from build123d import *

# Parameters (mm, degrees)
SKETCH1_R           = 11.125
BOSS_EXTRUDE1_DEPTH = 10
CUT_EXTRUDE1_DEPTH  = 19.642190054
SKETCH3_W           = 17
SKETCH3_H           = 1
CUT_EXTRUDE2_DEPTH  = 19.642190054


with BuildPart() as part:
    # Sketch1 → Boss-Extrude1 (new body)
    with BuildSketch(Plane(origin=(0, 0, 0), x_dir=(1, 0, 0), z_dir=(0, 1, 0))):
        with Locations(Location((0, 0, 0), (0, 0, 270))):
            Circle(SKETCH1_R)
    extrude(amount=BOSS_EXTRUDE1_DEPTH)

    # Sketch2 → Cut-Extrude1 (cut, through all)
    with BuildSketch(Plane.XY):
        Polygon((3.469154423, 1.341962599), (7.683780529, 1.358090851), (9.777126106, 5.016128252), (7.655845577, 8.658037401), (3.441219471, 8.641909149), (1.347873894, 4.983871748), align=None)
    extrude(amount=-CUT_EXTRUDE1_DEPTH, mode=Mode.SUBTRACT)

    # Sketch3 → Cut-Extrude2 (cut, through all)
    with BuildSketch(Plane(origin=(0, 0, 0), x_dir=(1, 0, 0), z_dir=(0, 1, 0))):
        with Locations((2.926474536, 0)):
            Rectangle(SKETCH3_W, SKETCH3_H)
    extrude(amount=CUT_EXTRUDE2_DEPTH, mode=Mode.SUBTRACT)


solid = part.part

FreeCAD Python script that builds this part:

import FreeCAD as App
import Part
import Sketcher

V = App.Vector
Q = App.Units.Quantity

doc = App.newDocument("Part")
params = doc.addObject("Spreadsheet::Sheet", "Params")
for row, (alias, value) in enumerate([
    ("sketch1_diameter", "22.25 mm"),
    ("pad1_length", "10 mm"),
    ("sketch3_width", "17 mm"),
    ("sketch3_height", "1 mm"),
], start=1):
    params.set(f"A{row}", alias)
    params.set(f"B{row}", "=" + value)
    params.setAlias(f"B{row}", alias)

body = doc.addObject("PartDesign::Body", "Body")

sketch1 = doc.addObject("Sketcher::SketchObject", "Sketch")
body.addObject(sketch1)
sketch1.AttachmentSupport = (doc.XZ_Plane, [""])
sketch1.MapMode = "FlatFace"
sketch1.addGeometry(Part.Circle(V(0, 0, 0), V(0, 0, 1), 11), False)
sketch1.addConstraint([
    Sketcher.Constraint("Coincident", 0, 3, -1, 1),
    Sketcher.Constraint("Diameter", 0, Q("22.25 mm")),
])
sketch1.setExpression("Constraints[1]", "Params.sketch1_diameter")
pad1 = doc.addObject("PartDesign::Pad", "Pad")
body.addObject(pad1)
pad1.Profile = sketch1
pad1.setExpression("Length", "Params.pad1_length")
pad1.Reversed = True

sketch2 = doc.addObject("Sketcher::SketchObject", "Sketch001")
body.addObject(sketch2)
sketch2.AttachmentSupport = (doc.XY_Plane, [""])
sketch2.MapMode = "FlatFace"
sketch2.addGeometry([
    Part.LineSegment(V(3.5, 1.3, 0), V(7.7, 1.4, 0)),
    Part.LineSegment(V(7.7, 1.4, 0), V(9.8, 5, 0)),
    Part.LineSegment(V(9.8, 5, 0), V(7.7, 8.7, 0)),
    Part.LineSegment(V(7.7, 8.7, 0), V(3.4, 8.6, 0)),
    Part.LineSegment(V(3.4, 8.6, 0), V(1.3, 5, 0)),
    Part.LineSegment(V(1.3, 5, 0), V(3.5, 1.3, 0)),
], False)
sketch2.addConstraint([
    Sketcher.Constraint("Coincident", 0, 2, 1, 1),
    Sketcher.Constraint("Coincident", 1, 2, 2, 1),
    Sketcher.Constraint("Coincident", 2, 2, 3, 1),
    Sketcher.Constraint("Coincident", 3, 2, 4, 1),
    Sketcher.Constraint("Coincident", 4, 2, 5, 1),
    Sketcher.Constraint("Coincident", 5, 2, 0, 1),
    Sketcher.Constraint("Parallel", 0, 3),
    Sketcher.Constraint("Parallel", 1, 4),
    Sketcher.Constraint("Parallel", 2, 5),
    Sketcher.Constraint("Equal", 0, 1),
    Sketcher.Constraint("Equal", 1, 2),
    Sketcher.Constraint("Equal", 2, 3),
    Sketcher.Constraint("DistanceX", -1, 1, 0, 2, Q("7.683781 mm")),
    Sketcher.Constraint("DistanceY", -1, 1, 0, 2, Q("1.358091 mm")),
    Sketcher.Constraint("DistanceY", -1, 1, 1, 2, Q("5.016128 mm")),
    Sketcher.Constraint("DistanceX", -1, 1, 3, 2, Q("3.441219 mm")),
    Sketcher.Constraint("DistanceY", -1, 1, 3, 2, Q("8.641909 mm")),
    Sketcher.Constraint("DistanceX", 2, 2, 1, 2, Q("2.121281 mm")),
])
pocket1 = doc.addObject("PartDesign::Pocket", "Pocket")
body.addObject(pocket1)
pocket1.Profile = sketch2
pocket1.Type = "ThroughAll"

sketch3 = doc.addObject("Sketcher::SketchObject", "Sketch002")
body.addObject(sketch3)
sketch3.AttachmentSupport = (doc.XZ_Plane, [""])
sketch3.MapMode = "FlatFace"
sketch3.addGeometry([
    Part.LineSegment(V(-5.6, -0.5, 0), V(-5.6, 0.5, 0)),
    Part.LineSegment(V(-5.6, 0.5, 0), V(11.4, 0.5, 0)),
    Part.LineSegment(V(11.4, 0.5, 0), V(11.4, -0.5, 0)),
    Part.LineSegment(V(11.4, -0.5, 0), V(-5.6, -0.5, 0)),
], False)
sketch3.addConstraint([
    Sketcher.Constraint("Coincident", 0, 2, 1, 1),
    Sketcher.Constraint("Coincident", 1, 2, 2, 1),
    Sketcher.Constraint("Coincident", 2, 2, 3, 1),
    Sketcher.Constraint("Coincident", 3, 2, 0, 1),
    Sketcher.Constraint("Vertical", 0),
    Sketcher.Constraint("Horizontal", 1),
    Sketcher.Constraint("Vertical", 2),
    Sketcher.Constraint("Horizontal", 3),
    Sketcher.Constraint("DistanceX", 1, 1, 1, 2, Q("17 mm")),
    Sketcher.Constraint("DistanceY", 0, 1, 0, 2, Q("1 mm")),
    Sketcher.Constraint("DistanceY", -1, 1, 0, 2, Q("0.5 mm")),
    Sketcher.Constraint("DistanceX", 0, 2, -1, 1, Q("5.573525 mm")),
])
sketch3.setExpression("Constraints[8]", "Params.sketch3_width")
sketch3.setExpression("Constraints[9]", "Params.sketch3_height")
pocket2 = doc.addObject("PartDesign::Pocket", "Pocket001")
body.addObject(pocket2)
pocket2.Profile = sketch3
pocket2.Type = "ThroughAll"

doc.recompute()
